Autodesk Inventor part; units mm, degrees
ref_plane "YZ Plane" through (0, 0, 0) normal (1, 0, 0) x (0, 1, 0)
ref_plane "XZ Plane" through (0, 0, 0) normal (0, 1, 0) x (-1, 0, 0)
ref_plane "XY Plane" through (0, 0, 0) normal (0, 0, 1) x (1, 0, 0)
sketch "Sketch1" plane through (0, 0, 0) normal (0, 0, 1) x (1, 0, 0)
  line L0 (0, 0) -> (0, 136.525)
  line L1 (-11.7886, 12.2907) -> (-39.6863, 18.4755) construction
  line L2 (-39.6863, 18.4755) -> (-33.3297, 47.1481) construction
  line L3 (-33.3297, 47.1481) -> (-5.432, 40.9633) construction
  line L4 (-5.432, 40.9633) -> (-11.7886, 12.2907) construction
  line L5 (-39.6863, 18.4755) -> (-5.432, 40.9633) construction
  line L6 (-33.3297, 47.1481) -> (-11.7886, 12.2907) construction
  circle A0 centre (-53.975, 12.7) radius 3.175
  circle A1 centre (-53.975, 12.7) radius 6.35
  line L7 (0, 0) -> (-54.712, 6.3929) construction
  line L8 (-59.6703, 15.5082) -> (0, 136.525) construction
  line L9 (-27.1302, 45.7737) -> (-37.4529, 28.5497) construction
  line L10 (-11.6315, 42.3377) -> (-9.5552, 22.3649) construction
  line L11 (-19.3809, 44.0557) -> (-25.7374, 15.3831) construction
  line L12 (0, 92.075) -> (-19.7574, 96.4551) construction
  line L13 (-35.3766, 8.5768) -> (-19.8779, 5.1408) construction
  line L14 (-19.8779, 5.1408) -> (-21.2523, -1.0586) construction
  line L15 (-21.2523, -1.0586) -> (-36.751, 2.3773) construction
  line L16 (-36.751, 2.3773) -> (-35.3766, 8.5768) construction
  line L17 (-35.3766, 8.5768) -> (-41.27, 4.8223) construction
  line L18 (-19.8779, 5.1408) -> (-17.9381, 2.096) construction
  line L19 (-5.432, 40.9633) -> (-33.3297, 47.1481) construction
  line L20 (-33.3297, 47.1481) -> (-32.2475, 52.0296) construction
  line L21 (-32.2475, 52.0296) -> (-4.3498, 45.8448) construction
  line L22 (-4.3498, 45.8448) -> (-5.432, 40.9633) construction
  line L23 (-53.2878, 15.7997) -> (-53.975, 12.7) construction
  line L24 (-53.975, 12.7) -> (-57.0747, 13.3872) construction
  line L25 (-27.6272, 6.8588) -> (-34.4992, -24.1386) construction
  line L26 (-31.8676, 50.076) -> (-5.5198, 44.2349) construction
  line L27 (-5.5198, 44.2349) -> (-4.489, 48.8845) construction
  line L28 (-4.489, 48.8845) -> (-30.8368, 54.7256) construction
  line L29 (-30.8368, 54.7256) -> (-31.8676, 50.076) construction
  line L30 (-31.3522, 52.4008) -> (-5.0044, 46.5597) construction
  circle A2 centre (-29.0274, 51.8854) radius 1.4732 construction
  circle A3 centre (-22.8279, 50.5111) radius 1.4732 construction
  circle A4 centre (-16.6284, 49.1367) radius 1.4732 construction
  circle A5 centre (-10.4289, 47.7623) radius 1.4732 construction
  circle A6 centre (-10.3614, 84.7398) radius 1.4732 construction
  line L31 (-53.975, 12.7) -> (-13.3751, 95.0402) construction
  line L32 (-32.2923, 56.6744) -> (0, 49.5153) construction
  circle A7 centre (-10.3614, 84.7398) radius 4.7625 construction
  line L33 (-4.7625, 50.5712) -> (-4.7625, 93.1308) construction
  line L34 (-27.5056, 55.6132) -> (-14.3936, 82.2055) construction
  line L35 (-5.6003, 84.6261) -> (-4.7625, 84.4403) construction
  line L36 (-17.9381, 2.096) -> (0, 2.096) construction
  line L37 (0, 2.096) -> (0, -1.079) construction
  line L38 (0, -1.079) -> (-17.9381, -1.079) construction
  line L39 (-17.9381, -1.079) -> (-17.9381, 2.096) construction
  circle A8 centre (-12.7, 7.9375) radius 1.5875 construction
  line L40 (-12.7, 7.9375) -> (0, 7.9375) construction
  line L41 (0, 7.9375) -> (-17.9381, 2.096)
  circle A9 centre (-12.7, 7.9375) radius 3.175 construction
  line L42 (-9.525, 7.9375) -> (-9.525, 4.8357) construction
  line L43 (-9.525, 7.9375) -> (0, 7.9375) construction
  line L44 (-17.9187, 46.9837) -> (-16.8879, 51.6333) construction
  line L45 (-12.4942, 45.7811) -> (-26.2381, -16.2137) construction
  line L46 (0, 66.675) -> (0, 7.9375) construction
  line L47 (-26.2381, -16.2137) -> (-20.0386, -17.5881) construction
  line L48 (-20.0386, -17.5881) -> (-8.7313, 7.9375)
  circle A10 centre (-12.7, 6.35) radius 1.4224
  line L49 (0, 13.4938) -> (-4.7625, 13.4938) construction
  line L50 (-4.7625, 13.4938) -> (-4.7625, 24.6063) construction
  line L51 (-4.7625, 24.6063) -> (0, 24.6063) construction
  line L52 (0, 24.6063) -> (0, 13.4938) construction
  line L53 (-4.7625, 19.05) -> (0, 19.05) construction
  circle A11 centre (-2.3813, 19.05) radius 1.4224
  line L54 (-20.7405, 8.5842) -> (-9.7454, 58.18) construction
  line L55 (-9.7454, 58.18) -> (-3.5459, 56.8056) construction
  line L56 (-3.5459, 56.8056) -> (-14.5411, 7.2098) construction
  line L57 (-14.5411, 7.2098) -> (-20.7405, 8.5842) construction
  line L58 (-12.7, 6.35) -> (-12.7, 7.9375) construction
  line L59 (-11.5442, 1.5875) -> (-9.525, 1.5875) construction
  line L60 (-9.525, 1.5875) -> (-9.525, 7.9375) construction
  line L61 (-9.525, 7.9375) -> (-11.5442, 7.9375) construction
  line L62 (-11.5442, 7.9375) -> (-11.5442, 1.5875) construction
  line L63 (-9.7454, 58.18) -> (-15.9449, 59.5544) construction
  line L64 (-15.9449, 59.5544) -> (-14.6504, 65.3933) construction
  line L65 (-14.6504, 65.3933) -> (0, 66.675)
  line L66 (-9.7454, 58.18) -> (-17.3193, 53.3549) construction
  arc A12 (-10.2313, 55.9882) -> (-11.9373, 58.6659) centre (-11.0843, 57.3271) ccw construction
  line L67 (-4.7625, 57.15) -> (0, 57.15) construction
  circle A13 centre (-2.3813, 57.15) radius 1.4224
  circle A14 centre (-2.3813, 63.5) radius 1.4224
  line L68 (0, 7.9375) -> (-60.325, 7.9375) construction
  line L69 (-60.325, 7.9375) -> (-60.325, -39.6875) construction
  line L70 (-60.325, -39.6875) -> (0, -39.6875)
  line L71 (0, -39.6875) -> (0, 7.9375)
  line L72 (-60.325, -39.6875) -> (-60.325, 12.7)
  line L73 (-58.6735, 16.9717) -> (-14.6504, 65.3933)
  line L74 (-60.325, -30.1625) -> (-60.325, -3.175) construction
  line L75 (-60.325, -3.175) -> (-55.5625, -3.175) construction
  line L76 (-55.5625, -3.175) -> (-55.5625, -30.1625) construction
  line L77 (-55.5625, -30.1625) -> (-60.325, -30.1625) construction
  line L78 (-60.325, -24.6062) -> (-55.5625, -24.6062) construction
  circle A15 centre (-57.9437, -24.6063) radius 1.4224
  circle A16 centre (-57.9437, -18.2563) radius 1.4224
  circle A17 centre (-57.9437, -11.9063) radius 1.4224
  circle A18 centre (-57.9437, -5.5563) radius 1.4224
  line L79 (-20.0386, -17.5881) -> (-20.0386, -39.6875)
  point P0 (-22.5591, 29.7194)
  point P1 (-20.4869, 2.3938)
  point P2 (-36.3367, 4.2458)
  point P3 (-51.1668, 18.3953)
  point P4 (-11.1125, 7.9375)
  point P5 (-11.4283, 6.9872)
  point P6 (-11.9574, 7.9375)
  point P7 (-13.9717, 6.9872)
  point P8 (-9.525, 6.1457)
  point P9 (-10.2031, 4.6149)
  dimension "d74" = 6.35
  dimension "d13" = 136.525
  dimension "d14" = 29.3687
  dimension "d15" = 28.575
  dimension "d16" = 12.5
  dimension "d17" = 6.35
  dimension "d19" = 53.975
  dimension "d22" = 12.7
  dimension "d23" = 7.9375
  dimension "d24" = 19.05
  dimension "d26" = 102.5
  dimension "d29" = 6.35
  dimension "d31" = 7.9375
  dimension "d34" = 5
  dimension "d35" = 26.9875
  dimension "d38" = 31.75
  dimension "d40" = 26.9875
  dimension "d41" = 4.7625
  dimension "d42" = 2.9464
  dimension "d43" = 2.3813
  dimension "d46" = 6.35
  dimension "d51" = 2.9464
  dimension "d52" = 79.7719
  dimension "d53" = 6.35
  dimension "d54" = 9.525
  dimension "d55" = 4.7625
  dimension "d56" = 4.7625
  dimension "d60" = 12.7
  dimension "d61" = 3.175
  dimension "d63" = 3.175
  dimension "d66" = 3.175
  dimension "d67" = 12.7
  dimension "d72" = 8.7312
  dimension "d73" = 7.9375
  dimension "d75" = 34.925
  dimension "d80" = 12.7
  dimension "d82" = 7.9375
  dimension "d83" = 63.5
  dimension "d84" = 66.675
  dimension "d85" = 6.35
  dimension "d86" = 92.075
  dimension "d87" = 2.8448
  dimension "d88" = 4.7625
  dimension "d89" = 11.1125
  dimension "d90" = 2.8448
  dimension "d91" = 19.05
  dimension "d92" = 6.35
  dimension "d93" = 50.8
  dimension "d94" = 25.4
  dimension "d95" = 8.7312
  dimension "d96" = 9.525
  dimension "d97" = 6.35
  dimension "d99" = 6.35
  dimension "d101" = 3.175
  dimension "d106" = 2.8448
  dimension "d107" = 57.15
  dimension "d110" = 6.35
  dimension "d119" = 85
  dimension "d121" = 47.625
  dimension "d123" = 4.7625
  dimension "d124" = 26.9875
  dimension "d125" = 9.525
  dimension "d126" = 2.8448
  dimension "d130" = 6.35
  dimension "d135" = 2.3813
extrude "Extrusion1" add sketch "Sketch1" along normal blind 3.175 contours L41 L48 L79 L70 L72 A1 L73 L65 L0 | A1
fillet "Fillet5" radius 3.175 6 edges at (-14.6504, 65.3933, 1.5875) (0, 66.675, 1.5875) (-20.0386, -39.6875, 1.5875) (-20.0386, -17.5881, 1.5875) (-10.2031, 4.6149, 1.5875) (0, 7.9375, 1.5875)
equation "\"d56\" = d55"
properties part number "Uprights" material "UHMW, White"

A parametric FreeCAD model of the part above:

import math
import FreeCAD as App
import Part
import Sketcher

V = App.Vector
Q = App.Units.Quantity


def edges_at(feature, points):
    """Names of the edges that pass closest to the given points."""
    edges = feature.Shape.Edges
    near = lambda p: min(range(len(edges)), key=lambda i: edges[i].distToShape(Part.Vertex(*p))[0])
    return sorted({f"Edge{near(p) + 1}" for p in points})

doc = App.newDocument("Part")
body = doc.addObject("PartDesign::Body", "Body")

# Sketch on XY plane
sketch1 = doc.addObject("Sketcher::SketchObject", "Sketch")
body.addObject(sketch1)
sketch1.AttachmentSupport = (doc.XY_Plane, [""])
sketch1.MapMode = "FlatFace"
sketch1.addGeometry([
    Part.LineSegment(V(-10.2, 4.6, 0), V(0, 7.9, 0)),  # 0
    Part.LineSegment(V(0, 7.9, 0), V(0, 66.7, 0)),  # 1
    Part.LineSegment(V(0, 66.7, 0), V(-14.7, 65.4, 0)),  # 2
    Part.LineSegment(V(-14.7, 65.4, 0), V(-58.7, 17, 0)),  # 3
    Part.ArcOfCircle(Part.Circle(V(-54, 12.7, 0), V(0, 0, 1), 6.3), math.radians(138), math.radians(180)),  # 4
    Part.LineSegment(V(-60.3, 12.7, 0), V(-60.3, -39.7, 0)),  # 5
    Part.LineSegment(V(-60.3, -39.7, 0), V(-20, -39.7, 0)),  # 6
    Part.LineSegment(V(-20, -39.7, 0), V(-20, -17.6, 0)),  # 7
    Part.LineSegment(V(-20, -17.6, 0), V(-10.2, 4.6, 0)),  # 8
    Part.Circle(V(-57.9, -24.6, 0), V(0, 0, 1), 1.4),  # 9
    Part.Circle(V(-57.9, -18.3, 0), V(0, 0, 1), 1.4),  # 10
    Part.Circle(V(-57.9, -11.9, 0), V(0, 0, 1), 1.4),  # 11
    Part.Circle(V(-57.9, -5.6, 0), V(0, 0, 1), 1.4),  # 12
    Part.Circle(V(-12.7, 6.3, 0), V(0, 0, 1), 1.4),  # 13
    Part.Circle(V(-2.4, 19.1, 0), V(0, 0, 1), 1.4),  # 14
    Part.Circle(V(-2.4, 57.1, 0), V(0, 0, 1), 1.4),  # 15
    Part.Circle(V(-2.4, 63.5, 0), V(0, 0, 1), 1.4),  # 16
    Part.Circle(V(-54, 12.7, 0), V(0, 0, 1), 3.2),  # 17
], False)
sketch1.addConstraint([
    Sketcher.Constraint("Coincident", 0, 2, 1, 1),
    Sketcher.Constraint("Coincident", 1, 2, 2, 1),
    Sketcher.Constraint("Coincident", 2, 2, 3, 1),
    Sketcher.Constraint("Tangent", 3, 2, 4, 1),
    Sketcher.Constraint("Tangent", 4, 2, 5, 1),
    Sketcher.Constraint("Coincident", 5, 2, 6, 1),
    Sketcher.Constraint("Coincident", 6, 2, 7, 1),
    Sketcher.Constraint("Coincident", 7, 2, 8, 1),
    Sketcher.Constraint("Coincident", 8, 2, 0, 1),
    Sketcher.Constraint("Vertical", 1),
    Sketcher.Constraint("Vertical", 5),
    Sketcher.Constraint("Horizontal", 6),
    Sketcher.Constraint("Vertical", 7),
    Sketcher.Constraint("Coincident", 17, 3, 4, 3),
    Sketcher.Constraint("Equal", 9, 10),
    Sketcher.Constraint("Equal", 10, 11),
    Sketcher.Constraint("Equal", 11, 12),
    Sketcher.Constraint("Equal", 12, 13),
    Sketcher.Constraint("Equal", 13, 14),
    Sketcher.Constraint("Equal", 14, 15),
    Sketcher.Constraint("Equal", 15, 16),
    Sketcher.Constraint("PointOnObject", 0, 2, -2),
    Sketcher.Constraint("Vertical", 9, 3, 10, 3),
    Sketcher.Constraint("Vertical", 10, 3, 11, 3),
    Sketcher.Constraint("Vertical", 11, 3, 12, 3),
    Sketcher.Constraint("Vertical", 14, 3, 15, 3),
    Sketcher.Constraint("Vertical", 15, 3, 16, 3),
    Sketcher.Constraint("Diameter", 17, Q("0.25 in")),
    Sketcher.Constraint("Radius", 4, Q("0.25 in")),
    Sketcher.Constraint("Diameter", 9, Q("0.112 in")),
    Sketcher.Constraint("DistanceY", 13, 3, 15, 3, Q("2 in")),
    Sketcher.Constraint("DistanceY", 4, 3, 16, 3, Q("2 in")),
    Sketcher.Constraint("DistanceY", -1, 1, 4, 3, Q("0.5 in")),
    Sketcher.Constraint("DistanceX", 13, 3, -1, 1, Q("0.5 in")),
    Sketcher.Constraint("DistanceY", 9, 3, 11, 3, Q("0.5 in")),
    Sketcher.Constraint("DistanceY", 10, 3, 12, 3, Q("0.5 in")),
    Sketcher.Constraint("DistanceY", 13, 3, 14, 3, Q("0.5 in")),
    Sketcher.Constraint("DistanceY", -1, 1, 13, 3, Q("0.25 in")),
    Sketcher.Constraint("DistanceY", 9, 3, 10, 3, Q("0.25 in")),
    Sketcher.Constraint("DistanceX", 4, 3, -1, 1, Q("2.125 in")),
    Sketcher.Constraint("DistanceX", 14, 3, -1, 1, Q("0.093752 in")),
    Sketcher.Constraint("DistanceY", -1, 1, 0, 2, Q("0.3125 in")),
    Sketcher.Constraint("DistanceY", -1, 1, 1, 2, Q("2.625 in")),
    Sketcher.Constraint("Angle", 2, Q("-175.0002 deg")),
    Sketcher.Constraint("DistanceX", 4, 2, 12, 3, Q("0.093752 in")),
    Sketcher.Constraint("DistanceY", 5, 2, 5, 1, Q("2.0625 in")),
    Sketcher.Constraint("Distance", 2, Q("0.579 in")),
    Sketcher.Constraint("DistanceY", 9, 3, -1, 1, Q("0.968752 in")),
    Sketcher.Constraint("DistanceX", 6, 1, 6, 2, Q("40.2864 mm")),
    Sketcher.Constraint("DistanceY", 7, 1, 7, 2, Q("22.0994 mm")),
    Sketcher.Constraint("DistanceX", 8, 2, -1, 1, Q("0.4017 in")),
    Sketcher.Constraint("Distance", 0, Q("10.7305 mm")),
])
pad1 = doc.addObject("PartDesign::Pad", "Pad")
body.addObject(pad1)
pad1.Profile = sketch1
pad1.Length = Q("0.125 in")
doc.recompute()

fillet = doc.addObject("PartDesign::Fillet", "Fillet")
body.addObject(fillet)
fillet.Base = (pad1, edges_at(pad1, [
    (-14.65, 65.393, 1.587),
    (0, 66.675, 1.587),
    (-20.039, -39.688, 1.587),
    (-20.039, -17.588, 1.587),
    (-10.203, 4.615, 1.587),
    (0, 7.938, 1.587),
]))
fillet.Radius = Q("0.125 in")

doc.recompute()
